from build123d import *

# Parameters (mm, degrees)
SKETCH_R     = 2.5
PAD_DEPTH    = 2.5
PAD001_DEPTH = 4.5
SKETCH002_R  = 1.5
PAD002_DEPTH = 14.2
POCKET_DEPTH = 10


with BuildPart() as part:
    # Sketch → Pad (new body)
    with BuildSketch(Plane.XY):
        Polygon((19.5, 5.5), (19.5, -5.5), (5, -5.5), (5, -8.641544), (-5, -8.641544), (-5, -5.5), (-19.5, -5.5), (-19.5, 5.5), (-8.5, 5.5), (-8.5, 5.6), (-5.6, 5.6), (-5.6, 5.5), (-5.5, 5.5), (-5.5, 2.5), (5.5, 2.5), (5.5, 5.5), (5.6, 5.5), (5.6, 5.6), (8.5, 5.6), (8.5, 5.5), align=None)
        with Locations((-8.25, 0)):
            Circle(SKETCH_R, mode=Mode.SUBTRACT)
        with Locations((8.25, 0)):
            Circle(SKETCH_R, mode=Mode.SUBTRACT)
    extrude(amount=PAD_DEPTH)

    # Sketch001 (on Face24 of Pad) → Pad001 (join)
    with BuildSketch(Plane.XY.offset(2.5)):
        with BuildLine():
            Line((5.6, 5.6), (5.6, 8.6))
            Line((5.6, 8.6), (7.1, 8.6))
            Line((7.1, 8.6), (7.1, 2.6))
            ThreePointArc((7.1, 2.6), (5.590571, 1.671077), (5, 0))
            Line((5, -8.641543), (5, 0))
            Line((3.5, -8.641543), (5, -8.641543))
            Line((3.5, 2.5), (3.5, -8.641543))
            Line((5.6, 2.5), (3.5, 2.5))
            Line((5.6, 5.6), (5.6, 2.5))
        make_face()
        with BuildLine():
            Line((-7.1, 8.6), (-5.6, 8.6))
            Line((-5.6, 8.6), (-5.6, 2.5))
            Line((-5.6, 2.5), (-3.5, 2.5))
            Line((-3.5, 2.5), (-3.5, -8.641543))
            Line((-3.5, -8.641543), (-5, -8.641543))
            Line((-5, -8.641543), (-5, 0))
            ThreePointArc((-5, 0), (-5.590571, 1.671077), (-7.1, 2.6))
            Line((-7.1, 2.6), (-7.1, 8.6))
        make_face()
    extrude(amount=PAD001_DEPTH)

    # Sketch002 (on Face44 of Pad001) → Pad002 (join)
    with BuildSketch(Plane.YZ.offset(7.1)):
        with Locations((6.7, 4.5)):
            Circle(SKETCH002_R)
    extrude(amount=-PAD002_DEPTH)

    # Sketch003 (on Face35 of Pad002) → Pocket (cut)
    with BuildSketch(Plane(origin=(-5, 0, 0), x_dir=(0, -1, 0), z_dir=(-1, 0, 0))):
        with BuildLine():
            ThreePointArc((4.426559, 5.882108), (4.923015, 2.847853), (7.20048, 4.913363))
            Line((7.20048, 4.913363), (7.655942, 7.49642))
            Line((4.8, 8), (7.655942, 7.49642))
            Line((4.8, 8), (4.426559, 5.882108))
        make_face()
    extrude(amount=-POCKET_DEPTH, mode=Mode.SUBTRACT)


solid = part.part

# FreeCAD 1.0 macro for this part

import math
import FreeCAD as App
import Part
import Sketcher
from FreeCAD import Vector
Q = App.Units.Quantity


def add_polygon(sketch, points):
    """Adds a closed chain of lines whose ends are joined by coincident constraints."""
    first, n = sketch.GeometryCount, len(points)
    for a, b in zip(points, points[1:] + points[:1]):
        sketch.addGeometry(Part.LineSegment(App.Vector(*a, 0), App.Vector(*b, 0)), False)
    for i in range(n):
        sketch.addConstraint(Sketcher.Constraint("Coincident", first + i, 2, first + (i + 1) % n, 1))

doc = App.newDocument("Part")
params = doc.addObject("Spreadsheet::Sheet", "Params")
for row, (alias, value) in enumerate([
    ("sketch1_diameter", "5 mm"),
    ("sketch1_width", "11 mm"),
    ("sketch1_width2", "10 mm"),
    ("sketch1_height", "3 mm"),
    ("sketch1_width3", "2.9 mm"),
    ("pad1_length", "2.5 mm"),
    ("sketch2_height", "6 mm"),
    ("sketch2_width", "2.1 mm"),
    ("sketch2_width2", "1.5 mm"),
    ("sketch2_height2", "6.1 mm"),
    ("pad2_length", "4.5 mm"),
    ("sketch3_diameter", "3 mm"),
    ("pad3_length", "14.2 mm"),
    ("sketch4_radius", "1.75 mm"),
    ("sketch4_length", "2.9 mm"),
    ("pocket1_length", "10 mm"),
], start=1):
    params.set(f"A{row}", alias)
    params.set(f"B{row}", "=" + value)
    params.setAlias(f"B{row}", alias)

body = doc.addObject("PartDesign::Body", "Body")

# Sketch on XY plane
sketch1 = body.newObject("Sketcher::SketchObject", "Sketch")
sketch1.AttachmentSupport = (doc.getObject("XY_Plane"), [""])
sketch1.MapMode = "FlatFace"
add_polygon(sketch1, [(19.5, -5.5), (19.5, 5.5), (8.5, 5.5), (8.5, 5.6), (5.6, 5.6), (5.6, 5.5), (5.5, 5.5), (5.5, 2.5), (-5.5, 2.5), (-5.5, 5.5), (-5.6, 5.5), (-5.6, 5.6), (-8.5, 5.6), (-8.5, 5.5), (-19.5, 5.5), (-19.5, -5.5), (-5, -5.5), (-5, -8.64), (5, -8.64), (5, -5.5)])  # lines 0-19
sketch1.addGeometry(Part.Circle(Vector(8.25, 0, 0), Vector(0, 0, 1), 2.5), False)  # 20
sketch1.addGeometry(Part.Circle(Vector(-8.25, 0, 0), Vector(0, 0, 1), 2.5), False)  # 21
sketch1.addConstraint([
    Sketcher.Constraint("Vertical", 0),
    Sketcher.Constraint("Horizontal", 1),
    Sketcher.Constraint("Vertical", 2),
    Sketcher.Constraint("Horizontal", 3),
    Sketcher.Constraint("Vertical", 4),
    Sketcher.Constraint("Horizontal", 5),
    Sketcher.Constraint("Vertical", 6),
    Sketcher.Constraint("Horizontal", 7),
    Sketcher.Constraint("Vertical", 8),
    Sketcher.Constraint("Horizontal", 9),
    Sketcher.Constraint("Vertical", 10),
    Sketcher.Constraint("Horizontal", 11),
    Sketcher.Constraint("Vertical", 12),
    Sketcher.Constraint("Horizontal", 13),
    Sketcher.Constraint("Vertical", 14),
    Sketcher.Constraint("Horizontal", 15),
    Sketcher.Constraint("Vertical", 16),
    Sketcher.Constraint("Horizontal", 17),
    Sketcher.Constraint("Vertical", 18),
    Sketcher.Constraint("Horizontal", 19),
    Sketcher.Constraint("Equal", 20, 21),
    Sketcher.Constraint("Symmetric", 20, 3, 21, 3, -1, 1),
    Sketcher.Constraint("Symmetric", 0, 2, 14, 2, -1, 1),
    Sketcher.Constraint("Symmetric", 5, 2, 8, 2, -2),
    Sketcher.Constraint("Symmetric", 3, 2, 10, 2, -2),
    Sketcher.Constraint("Symmetric", 1, 2, 12, 2, -2),
    Sketcher.Constraint("Symmetric", 15, 2, 18, 2, -2),
    Sketcher.Constraint("PointOnObject", 20, 3, -1),
    Sketcher.Constraint("Horizontal", 1, 2, 4, 2),
    Sketcher.Constraint("Equal", 1, 7),
    Sketcher.Constraint("Equal", 13, 0),
    Sketcher.Constraint("Equal", 9, 2),
    Sketcher.Constraint("Diameter", 20, Q("5 mm")),
    Sketcher.Constraint("DistanceX", 1, 2, 1, 1, Q("11 mm")),
    Sketcher.Constraint("DistanceX", 17, 1, 17, 2, Q("10 mm")),
    Sketcher.Constraint("DistanceY", 6, 2, 6, 1, Q("3 mm")),
    Sketcher.Constraint("DistanceX", 3, 2, 3, 1, Q("2.9 mm")),
    Sketcher.Constraint("DistanceX", 5, 2, 5, 1, Q("0.1 mm")),
    Sketcher.Constraint("DistanceX", 21, 3, 20, 3, Q("16.5 mm")),
    Sketcher.Constraint("DistanceY", 16, 2, 16, 1, Q("3.141544 mm")),
])
sketch1.setExpression("Constraints[52]", "Params.sketch1_diameter")
sketch1.setExpression("Constraints[53]", "Params.sketch1_width")
sketch1.setExpression("Constraints[54]", "Params.sketch1_width2")
sketch1.setExpression("Constraints[55]", "Params.sketch1_height")
sketch1.setExpression("Constraints[56]", "Params.sketch1_width3")
pad1 = body.newObject("PartDesign::Pad", "Pad")
pad1.Profile = sketch1
pad1.setExpression("Length", "Params.pad1_length")

# Sketch on XY plane
sketch2 = body.newObject("Sketcher::SketchObject", "Sketch001")
sketch2.AttachmentSupport = (doc.getObject("XY_Plane"), [""])
sketch2.MapMode = "FlatFace"
sketch2.AttachmentOffset = App.Placement(Vector(0, 0, 2.5), App.Rotation())
sketch2.addGeometry([
    Part.LineSegment(Vector(5.6, 8.6, 0), Vector(5.6, 2.5, 0)),  # 0
    Part.LineSegment(Vector(5.6, 2.5, 0), Vector(3.5, 2.5, 0)),  # 1
    Part.LineSegment(Vector(3.5, 2.5, 0), Vector(3.5, -8.6, 0)),  # 2
    Part.LineSegment(Vector(3.5, -8.6, 0), Vector(5, -8.6, 0)),  # 3
    Part.LineSegment(Vector(5, -8.6, 0), Vector(5, 0, 0)),  # 4
    Part.ArcOfCircle(Part.Circle(Vector(7.7, 0, 0), Vector(0, 0, 1), 2.7), math.radians(102), math.radians(180)),  # 5
    Part.LineSegment(Vector(7.1, 2.6, 0), Vector(7.1, 8.6, 0)),  # 6
    Part.LineSegment(Vector(7.1, 8.6, 0), Vector(5.6, 8.6, 0)),  # 7
    Part.LineSegment(Vector(-5.6, 8.6, 0), Vector(-7.1, 8.6, 0)),  # 8
    Part.LineSegment(Vector(-7.1, 8.6, 0), Vector(-7.1, 2.6, 0)),  # 9
    Part.ArcOfCircle(Part.Circle(Vector(-7.7, 0, 0), Vector(0, 0, 1), 2.7), math.radians(0), math.radians(78)),  # 10
    Part.LineSegment(Vector(-5, 0, 0), Vector(-5, -8.6, 0)),  # 11
    Part.LineSegment(Vector(-5, -8.6, 0), Vector(-3.5, -8.6, 0)),  # 12
    Part.LineSegment(Vector(-3.5, -8.6, 0), Vector(-3.5, 2.5, 0)),  # 13
    Part.LineSegment(Vector(-3.5, 2.5, 0), Vector(-5.6, 2.5, 0)),  # 14
    Part.LineSegment(Vector(-5.6, 2.5, 0), Vector(-5.6, 8.6, 0)),  # 15
], False)
sketch2.addConstraint([
    Sketcher.Constraint("Coincident", 0, 2, 1, 1),
    Sketcher.Constraint("Coincident", 1, 2, 2, 1),
    Sketcher.Constraint("Coincident", 2, 2, 3, 1),
    Sketcher.Constraint("Coincident", 3, 2, 4, 1),
    Sketcher.Constraint("Tangent", 4, 2, 5, 2),
    Sketcher.Constraint("Coincident", 5, 1, 6, 1),
    Sketcher.Constraint("Coincident", 6, 2, 7, 1),
    Sketcher.Constraint("Coincident", 7, 2, 0, 1),
    Sketcher.Constraint("Coincident", 8, 2, 9, 1),
    Sketcher.Constraint("Coincident", 9, 2, 10, 2),
    Sketcher.Constraint("Tangent", 10, 1, 11, 1),
    Sketcher.Constraint("Coincident", 11, 2, 12, 1),
    Sketcher.Constraint("Coincident", 12, 2, 13, 1),
    Sketcher.Constraint("Coincident", 13, 2, 14, 1),
    Sketcher.Constraint("Coincident", 14, 2, 15, 1),
    Sketcher.Constraint("Coincident", 15, 2, 8, 1),
    Sketcher.Constraint("Vertical", 0),
    Sketcher.Constraint("Horizontal", 1),
    Sketcher.Constraint("Vertical", 2),
    Sketcher.Constraint("Horizontal", 3),
    Sketcher.Constraint("Vertical", 4),
    Sketcher.Constraint("Vertical", 6),
    Sketcher.Constraint("Horizontal", 7),
    Sketcher.Constraint("Horizontal", 8),
    Sketcher.Constraint("Vertical", 9),
    Sketcher.Constraint("Vertical", 11),
    Sketcher.Constraint("Horizontal", 12),
    Sketcher.Constraint("Vertical", 13),
    Sketcher.Constraint("Horizontal", 14),
    Sketcher.Constraint("Vertical", 15),
    Sketcher.Constraint("Equal", 5, 10),
    Sketcher.Constraint("Symmetric", 5, 3, 10, 3, -1, 1),
    Sketcher.Constraint("Symmetric", 6, 2, 8, 2, -2),
    Sketcher.Constraint("Symmetric", 2, 2, 12, 2, -2),
    Sketcher.Constraint("Symmetric", 0, 2, 14, 2, -2),
    Sketcher.Constraint("PointOnObject", 5, 3, -1),
    Sketcher.Constraint("Equal", 3, 7),
    Sketcher.Constraint("DistanceY", 6, 1, 6, 2, Q("6 mm")),
    Sketcher.Constraint("DistanceX", 1, 2, 1, 1, Q("2.1 mm")),
    Sketcher.Constraint("DistanceX", 3, 1, 3, 2, Q("1.5 mm")),
    Sketcher.Constraint("DistanceY", 0, 2, 0, 1, Q("6.1 mm")),
    Sketcher.Constraint("DistanceX", -1, 1, 3, 2, Q("5 mm")),
    Sketcher.Constraint("DistanceY", -1, 1, 0, 2, Q("2.5 mm")),
    Sketcher.Constraint("DistanceY", 2, 2, 2, 1, Q("11.141543 mm")),
])
sketch2.setExpression("Constraints[37]", "Params.sketch2_height")
sketch2.setExpression("Constraints[38]", "Params.sketch2_width")
sketch2.setExpression("Constraints[39]", "Params.sketch2_width2")
sketch2.setExpression("Constraints[40]", "Params.sketch2_height2")
pad2 = body.newObject("PartDesign::Pad", "Pad001")
pad2.Profile = sketch2
pad2.setExpression("Length", "Params.pad2_length")

# Sketch on YZ plane
sketch3 = body.newObject("Sketcher::SketchObject", "Sketch002")
sketch3.AttachmentSupport = (doc.getObject("YZ_Plane"), [""])
sketch3.MapMode = "FlatFace"
sketch3.AttachmentOffset = App.Placement(Vector(0, 0, 7.1), App.Rotation())
sketch3.addGeometry(Part.Circle(Vector(6.7, 4.5, 0), Vector(0, 0, 1), 1.5), False)
sketch3.addConstraint([
    Sketcher.Constraint("Diameter", 0, Q("3 mm")),
    Sketcher.Constraint("DistanceX", -1, 1, 0, 3, Q("6.7 mm")),
    Sketcher.Constraint("DistanceY", -1, 1, 0, 3, Q("4.5 mm")),
])
sketch3.setExpression("Constraints[0]", "Params.sketch3_diameter")
pad3 = body.newObject("PartDesign::Pad", "Pad002")
pad3.Profile = sketch3
pad3.setExpression("Length", "Params.pad3_length")
pad3.Reversed = True

# Sketch on YZ plane
sketch4 = body.newObject("Sketcher::SketchObject", "Sketch003")
sketch4.AttachmentSupport = (doc.getObject("YZ_Plane"), [""])
sketch4.MapMode = "FlatFace"
sketch4.AttachmentOffset = App.Placement(Vector(0, 0, -5), App.Rotation())
sketch4.addGeometry([
    Part.ArcOfCircle(Part.Circle(Vector(-5.5, 4.5, 0), Vector(0, 0, 1), 1.8), math.radians(166), math.radians(412)),
    Part.LineSegment(Vector(-7.2, 4.9, 0), Vector(-7.7, 7.5, 0)),
    Part.LineSegment(Vector(-7.7, 7.5, 0), Vector(-4.8, 8, 0)),
    Part.LineSegment(Vector(-4.8, 8, 0), Vector(-4.4, 5.9, 0)),
], False)
sketch4.addConstraint([
    Sketcher.Constraint("Coincident", 0, 1, 1, 1),
    Sketcher.Constraint("Coincident", 1, 2, 2, 1),
    Sketcher.Constraint("Coincident", 2, 2, 3, 1),
    Sketcher.Constraint("Coincident", 3, 2, 0, 2),
    Sketcher.Constraint("Perpendicular", 1, 2),
    Sketcher.Constraint("Perpendicular", 2, 3),
    Sketcher.Constraint("Angle", 1, Q("99.999986 deg")),
    Sketcher.Constraint("Radius", 0, Q("1.75 mm")),
    Sketcher.Constraint("DistanceY", -1, 1, 2, 2, Q("8 mm")),
    Sketcher.Constraint("Distance", 2, Q("2.9 mm")),
    Sketcher.Constraint("DistanceX", 0, 3, -1, 1, Q("5.5 mm")),
    Sketcher.Constraint("DistanceY", -1, 1, 0, 3, Q("4.5 mm")),
    Sketcher.Constraint("DistanceX", 2, 2, -1, 1, Q("4.8 mm")),
])
sketch4.setExpression("Constraints[7]", "Params.sketch4_radius")
sketch4.setExpression("Constraints[9]", "Params.sketch4_length")
pocket1 = body.newObject("PartDesign::Pocket", "Pocket")
pocket1.Profile = sketch4
pocket1.setExpression("Length", "Params.pocket1_length")
pocket1.Reversed = True

doc.recompute()
